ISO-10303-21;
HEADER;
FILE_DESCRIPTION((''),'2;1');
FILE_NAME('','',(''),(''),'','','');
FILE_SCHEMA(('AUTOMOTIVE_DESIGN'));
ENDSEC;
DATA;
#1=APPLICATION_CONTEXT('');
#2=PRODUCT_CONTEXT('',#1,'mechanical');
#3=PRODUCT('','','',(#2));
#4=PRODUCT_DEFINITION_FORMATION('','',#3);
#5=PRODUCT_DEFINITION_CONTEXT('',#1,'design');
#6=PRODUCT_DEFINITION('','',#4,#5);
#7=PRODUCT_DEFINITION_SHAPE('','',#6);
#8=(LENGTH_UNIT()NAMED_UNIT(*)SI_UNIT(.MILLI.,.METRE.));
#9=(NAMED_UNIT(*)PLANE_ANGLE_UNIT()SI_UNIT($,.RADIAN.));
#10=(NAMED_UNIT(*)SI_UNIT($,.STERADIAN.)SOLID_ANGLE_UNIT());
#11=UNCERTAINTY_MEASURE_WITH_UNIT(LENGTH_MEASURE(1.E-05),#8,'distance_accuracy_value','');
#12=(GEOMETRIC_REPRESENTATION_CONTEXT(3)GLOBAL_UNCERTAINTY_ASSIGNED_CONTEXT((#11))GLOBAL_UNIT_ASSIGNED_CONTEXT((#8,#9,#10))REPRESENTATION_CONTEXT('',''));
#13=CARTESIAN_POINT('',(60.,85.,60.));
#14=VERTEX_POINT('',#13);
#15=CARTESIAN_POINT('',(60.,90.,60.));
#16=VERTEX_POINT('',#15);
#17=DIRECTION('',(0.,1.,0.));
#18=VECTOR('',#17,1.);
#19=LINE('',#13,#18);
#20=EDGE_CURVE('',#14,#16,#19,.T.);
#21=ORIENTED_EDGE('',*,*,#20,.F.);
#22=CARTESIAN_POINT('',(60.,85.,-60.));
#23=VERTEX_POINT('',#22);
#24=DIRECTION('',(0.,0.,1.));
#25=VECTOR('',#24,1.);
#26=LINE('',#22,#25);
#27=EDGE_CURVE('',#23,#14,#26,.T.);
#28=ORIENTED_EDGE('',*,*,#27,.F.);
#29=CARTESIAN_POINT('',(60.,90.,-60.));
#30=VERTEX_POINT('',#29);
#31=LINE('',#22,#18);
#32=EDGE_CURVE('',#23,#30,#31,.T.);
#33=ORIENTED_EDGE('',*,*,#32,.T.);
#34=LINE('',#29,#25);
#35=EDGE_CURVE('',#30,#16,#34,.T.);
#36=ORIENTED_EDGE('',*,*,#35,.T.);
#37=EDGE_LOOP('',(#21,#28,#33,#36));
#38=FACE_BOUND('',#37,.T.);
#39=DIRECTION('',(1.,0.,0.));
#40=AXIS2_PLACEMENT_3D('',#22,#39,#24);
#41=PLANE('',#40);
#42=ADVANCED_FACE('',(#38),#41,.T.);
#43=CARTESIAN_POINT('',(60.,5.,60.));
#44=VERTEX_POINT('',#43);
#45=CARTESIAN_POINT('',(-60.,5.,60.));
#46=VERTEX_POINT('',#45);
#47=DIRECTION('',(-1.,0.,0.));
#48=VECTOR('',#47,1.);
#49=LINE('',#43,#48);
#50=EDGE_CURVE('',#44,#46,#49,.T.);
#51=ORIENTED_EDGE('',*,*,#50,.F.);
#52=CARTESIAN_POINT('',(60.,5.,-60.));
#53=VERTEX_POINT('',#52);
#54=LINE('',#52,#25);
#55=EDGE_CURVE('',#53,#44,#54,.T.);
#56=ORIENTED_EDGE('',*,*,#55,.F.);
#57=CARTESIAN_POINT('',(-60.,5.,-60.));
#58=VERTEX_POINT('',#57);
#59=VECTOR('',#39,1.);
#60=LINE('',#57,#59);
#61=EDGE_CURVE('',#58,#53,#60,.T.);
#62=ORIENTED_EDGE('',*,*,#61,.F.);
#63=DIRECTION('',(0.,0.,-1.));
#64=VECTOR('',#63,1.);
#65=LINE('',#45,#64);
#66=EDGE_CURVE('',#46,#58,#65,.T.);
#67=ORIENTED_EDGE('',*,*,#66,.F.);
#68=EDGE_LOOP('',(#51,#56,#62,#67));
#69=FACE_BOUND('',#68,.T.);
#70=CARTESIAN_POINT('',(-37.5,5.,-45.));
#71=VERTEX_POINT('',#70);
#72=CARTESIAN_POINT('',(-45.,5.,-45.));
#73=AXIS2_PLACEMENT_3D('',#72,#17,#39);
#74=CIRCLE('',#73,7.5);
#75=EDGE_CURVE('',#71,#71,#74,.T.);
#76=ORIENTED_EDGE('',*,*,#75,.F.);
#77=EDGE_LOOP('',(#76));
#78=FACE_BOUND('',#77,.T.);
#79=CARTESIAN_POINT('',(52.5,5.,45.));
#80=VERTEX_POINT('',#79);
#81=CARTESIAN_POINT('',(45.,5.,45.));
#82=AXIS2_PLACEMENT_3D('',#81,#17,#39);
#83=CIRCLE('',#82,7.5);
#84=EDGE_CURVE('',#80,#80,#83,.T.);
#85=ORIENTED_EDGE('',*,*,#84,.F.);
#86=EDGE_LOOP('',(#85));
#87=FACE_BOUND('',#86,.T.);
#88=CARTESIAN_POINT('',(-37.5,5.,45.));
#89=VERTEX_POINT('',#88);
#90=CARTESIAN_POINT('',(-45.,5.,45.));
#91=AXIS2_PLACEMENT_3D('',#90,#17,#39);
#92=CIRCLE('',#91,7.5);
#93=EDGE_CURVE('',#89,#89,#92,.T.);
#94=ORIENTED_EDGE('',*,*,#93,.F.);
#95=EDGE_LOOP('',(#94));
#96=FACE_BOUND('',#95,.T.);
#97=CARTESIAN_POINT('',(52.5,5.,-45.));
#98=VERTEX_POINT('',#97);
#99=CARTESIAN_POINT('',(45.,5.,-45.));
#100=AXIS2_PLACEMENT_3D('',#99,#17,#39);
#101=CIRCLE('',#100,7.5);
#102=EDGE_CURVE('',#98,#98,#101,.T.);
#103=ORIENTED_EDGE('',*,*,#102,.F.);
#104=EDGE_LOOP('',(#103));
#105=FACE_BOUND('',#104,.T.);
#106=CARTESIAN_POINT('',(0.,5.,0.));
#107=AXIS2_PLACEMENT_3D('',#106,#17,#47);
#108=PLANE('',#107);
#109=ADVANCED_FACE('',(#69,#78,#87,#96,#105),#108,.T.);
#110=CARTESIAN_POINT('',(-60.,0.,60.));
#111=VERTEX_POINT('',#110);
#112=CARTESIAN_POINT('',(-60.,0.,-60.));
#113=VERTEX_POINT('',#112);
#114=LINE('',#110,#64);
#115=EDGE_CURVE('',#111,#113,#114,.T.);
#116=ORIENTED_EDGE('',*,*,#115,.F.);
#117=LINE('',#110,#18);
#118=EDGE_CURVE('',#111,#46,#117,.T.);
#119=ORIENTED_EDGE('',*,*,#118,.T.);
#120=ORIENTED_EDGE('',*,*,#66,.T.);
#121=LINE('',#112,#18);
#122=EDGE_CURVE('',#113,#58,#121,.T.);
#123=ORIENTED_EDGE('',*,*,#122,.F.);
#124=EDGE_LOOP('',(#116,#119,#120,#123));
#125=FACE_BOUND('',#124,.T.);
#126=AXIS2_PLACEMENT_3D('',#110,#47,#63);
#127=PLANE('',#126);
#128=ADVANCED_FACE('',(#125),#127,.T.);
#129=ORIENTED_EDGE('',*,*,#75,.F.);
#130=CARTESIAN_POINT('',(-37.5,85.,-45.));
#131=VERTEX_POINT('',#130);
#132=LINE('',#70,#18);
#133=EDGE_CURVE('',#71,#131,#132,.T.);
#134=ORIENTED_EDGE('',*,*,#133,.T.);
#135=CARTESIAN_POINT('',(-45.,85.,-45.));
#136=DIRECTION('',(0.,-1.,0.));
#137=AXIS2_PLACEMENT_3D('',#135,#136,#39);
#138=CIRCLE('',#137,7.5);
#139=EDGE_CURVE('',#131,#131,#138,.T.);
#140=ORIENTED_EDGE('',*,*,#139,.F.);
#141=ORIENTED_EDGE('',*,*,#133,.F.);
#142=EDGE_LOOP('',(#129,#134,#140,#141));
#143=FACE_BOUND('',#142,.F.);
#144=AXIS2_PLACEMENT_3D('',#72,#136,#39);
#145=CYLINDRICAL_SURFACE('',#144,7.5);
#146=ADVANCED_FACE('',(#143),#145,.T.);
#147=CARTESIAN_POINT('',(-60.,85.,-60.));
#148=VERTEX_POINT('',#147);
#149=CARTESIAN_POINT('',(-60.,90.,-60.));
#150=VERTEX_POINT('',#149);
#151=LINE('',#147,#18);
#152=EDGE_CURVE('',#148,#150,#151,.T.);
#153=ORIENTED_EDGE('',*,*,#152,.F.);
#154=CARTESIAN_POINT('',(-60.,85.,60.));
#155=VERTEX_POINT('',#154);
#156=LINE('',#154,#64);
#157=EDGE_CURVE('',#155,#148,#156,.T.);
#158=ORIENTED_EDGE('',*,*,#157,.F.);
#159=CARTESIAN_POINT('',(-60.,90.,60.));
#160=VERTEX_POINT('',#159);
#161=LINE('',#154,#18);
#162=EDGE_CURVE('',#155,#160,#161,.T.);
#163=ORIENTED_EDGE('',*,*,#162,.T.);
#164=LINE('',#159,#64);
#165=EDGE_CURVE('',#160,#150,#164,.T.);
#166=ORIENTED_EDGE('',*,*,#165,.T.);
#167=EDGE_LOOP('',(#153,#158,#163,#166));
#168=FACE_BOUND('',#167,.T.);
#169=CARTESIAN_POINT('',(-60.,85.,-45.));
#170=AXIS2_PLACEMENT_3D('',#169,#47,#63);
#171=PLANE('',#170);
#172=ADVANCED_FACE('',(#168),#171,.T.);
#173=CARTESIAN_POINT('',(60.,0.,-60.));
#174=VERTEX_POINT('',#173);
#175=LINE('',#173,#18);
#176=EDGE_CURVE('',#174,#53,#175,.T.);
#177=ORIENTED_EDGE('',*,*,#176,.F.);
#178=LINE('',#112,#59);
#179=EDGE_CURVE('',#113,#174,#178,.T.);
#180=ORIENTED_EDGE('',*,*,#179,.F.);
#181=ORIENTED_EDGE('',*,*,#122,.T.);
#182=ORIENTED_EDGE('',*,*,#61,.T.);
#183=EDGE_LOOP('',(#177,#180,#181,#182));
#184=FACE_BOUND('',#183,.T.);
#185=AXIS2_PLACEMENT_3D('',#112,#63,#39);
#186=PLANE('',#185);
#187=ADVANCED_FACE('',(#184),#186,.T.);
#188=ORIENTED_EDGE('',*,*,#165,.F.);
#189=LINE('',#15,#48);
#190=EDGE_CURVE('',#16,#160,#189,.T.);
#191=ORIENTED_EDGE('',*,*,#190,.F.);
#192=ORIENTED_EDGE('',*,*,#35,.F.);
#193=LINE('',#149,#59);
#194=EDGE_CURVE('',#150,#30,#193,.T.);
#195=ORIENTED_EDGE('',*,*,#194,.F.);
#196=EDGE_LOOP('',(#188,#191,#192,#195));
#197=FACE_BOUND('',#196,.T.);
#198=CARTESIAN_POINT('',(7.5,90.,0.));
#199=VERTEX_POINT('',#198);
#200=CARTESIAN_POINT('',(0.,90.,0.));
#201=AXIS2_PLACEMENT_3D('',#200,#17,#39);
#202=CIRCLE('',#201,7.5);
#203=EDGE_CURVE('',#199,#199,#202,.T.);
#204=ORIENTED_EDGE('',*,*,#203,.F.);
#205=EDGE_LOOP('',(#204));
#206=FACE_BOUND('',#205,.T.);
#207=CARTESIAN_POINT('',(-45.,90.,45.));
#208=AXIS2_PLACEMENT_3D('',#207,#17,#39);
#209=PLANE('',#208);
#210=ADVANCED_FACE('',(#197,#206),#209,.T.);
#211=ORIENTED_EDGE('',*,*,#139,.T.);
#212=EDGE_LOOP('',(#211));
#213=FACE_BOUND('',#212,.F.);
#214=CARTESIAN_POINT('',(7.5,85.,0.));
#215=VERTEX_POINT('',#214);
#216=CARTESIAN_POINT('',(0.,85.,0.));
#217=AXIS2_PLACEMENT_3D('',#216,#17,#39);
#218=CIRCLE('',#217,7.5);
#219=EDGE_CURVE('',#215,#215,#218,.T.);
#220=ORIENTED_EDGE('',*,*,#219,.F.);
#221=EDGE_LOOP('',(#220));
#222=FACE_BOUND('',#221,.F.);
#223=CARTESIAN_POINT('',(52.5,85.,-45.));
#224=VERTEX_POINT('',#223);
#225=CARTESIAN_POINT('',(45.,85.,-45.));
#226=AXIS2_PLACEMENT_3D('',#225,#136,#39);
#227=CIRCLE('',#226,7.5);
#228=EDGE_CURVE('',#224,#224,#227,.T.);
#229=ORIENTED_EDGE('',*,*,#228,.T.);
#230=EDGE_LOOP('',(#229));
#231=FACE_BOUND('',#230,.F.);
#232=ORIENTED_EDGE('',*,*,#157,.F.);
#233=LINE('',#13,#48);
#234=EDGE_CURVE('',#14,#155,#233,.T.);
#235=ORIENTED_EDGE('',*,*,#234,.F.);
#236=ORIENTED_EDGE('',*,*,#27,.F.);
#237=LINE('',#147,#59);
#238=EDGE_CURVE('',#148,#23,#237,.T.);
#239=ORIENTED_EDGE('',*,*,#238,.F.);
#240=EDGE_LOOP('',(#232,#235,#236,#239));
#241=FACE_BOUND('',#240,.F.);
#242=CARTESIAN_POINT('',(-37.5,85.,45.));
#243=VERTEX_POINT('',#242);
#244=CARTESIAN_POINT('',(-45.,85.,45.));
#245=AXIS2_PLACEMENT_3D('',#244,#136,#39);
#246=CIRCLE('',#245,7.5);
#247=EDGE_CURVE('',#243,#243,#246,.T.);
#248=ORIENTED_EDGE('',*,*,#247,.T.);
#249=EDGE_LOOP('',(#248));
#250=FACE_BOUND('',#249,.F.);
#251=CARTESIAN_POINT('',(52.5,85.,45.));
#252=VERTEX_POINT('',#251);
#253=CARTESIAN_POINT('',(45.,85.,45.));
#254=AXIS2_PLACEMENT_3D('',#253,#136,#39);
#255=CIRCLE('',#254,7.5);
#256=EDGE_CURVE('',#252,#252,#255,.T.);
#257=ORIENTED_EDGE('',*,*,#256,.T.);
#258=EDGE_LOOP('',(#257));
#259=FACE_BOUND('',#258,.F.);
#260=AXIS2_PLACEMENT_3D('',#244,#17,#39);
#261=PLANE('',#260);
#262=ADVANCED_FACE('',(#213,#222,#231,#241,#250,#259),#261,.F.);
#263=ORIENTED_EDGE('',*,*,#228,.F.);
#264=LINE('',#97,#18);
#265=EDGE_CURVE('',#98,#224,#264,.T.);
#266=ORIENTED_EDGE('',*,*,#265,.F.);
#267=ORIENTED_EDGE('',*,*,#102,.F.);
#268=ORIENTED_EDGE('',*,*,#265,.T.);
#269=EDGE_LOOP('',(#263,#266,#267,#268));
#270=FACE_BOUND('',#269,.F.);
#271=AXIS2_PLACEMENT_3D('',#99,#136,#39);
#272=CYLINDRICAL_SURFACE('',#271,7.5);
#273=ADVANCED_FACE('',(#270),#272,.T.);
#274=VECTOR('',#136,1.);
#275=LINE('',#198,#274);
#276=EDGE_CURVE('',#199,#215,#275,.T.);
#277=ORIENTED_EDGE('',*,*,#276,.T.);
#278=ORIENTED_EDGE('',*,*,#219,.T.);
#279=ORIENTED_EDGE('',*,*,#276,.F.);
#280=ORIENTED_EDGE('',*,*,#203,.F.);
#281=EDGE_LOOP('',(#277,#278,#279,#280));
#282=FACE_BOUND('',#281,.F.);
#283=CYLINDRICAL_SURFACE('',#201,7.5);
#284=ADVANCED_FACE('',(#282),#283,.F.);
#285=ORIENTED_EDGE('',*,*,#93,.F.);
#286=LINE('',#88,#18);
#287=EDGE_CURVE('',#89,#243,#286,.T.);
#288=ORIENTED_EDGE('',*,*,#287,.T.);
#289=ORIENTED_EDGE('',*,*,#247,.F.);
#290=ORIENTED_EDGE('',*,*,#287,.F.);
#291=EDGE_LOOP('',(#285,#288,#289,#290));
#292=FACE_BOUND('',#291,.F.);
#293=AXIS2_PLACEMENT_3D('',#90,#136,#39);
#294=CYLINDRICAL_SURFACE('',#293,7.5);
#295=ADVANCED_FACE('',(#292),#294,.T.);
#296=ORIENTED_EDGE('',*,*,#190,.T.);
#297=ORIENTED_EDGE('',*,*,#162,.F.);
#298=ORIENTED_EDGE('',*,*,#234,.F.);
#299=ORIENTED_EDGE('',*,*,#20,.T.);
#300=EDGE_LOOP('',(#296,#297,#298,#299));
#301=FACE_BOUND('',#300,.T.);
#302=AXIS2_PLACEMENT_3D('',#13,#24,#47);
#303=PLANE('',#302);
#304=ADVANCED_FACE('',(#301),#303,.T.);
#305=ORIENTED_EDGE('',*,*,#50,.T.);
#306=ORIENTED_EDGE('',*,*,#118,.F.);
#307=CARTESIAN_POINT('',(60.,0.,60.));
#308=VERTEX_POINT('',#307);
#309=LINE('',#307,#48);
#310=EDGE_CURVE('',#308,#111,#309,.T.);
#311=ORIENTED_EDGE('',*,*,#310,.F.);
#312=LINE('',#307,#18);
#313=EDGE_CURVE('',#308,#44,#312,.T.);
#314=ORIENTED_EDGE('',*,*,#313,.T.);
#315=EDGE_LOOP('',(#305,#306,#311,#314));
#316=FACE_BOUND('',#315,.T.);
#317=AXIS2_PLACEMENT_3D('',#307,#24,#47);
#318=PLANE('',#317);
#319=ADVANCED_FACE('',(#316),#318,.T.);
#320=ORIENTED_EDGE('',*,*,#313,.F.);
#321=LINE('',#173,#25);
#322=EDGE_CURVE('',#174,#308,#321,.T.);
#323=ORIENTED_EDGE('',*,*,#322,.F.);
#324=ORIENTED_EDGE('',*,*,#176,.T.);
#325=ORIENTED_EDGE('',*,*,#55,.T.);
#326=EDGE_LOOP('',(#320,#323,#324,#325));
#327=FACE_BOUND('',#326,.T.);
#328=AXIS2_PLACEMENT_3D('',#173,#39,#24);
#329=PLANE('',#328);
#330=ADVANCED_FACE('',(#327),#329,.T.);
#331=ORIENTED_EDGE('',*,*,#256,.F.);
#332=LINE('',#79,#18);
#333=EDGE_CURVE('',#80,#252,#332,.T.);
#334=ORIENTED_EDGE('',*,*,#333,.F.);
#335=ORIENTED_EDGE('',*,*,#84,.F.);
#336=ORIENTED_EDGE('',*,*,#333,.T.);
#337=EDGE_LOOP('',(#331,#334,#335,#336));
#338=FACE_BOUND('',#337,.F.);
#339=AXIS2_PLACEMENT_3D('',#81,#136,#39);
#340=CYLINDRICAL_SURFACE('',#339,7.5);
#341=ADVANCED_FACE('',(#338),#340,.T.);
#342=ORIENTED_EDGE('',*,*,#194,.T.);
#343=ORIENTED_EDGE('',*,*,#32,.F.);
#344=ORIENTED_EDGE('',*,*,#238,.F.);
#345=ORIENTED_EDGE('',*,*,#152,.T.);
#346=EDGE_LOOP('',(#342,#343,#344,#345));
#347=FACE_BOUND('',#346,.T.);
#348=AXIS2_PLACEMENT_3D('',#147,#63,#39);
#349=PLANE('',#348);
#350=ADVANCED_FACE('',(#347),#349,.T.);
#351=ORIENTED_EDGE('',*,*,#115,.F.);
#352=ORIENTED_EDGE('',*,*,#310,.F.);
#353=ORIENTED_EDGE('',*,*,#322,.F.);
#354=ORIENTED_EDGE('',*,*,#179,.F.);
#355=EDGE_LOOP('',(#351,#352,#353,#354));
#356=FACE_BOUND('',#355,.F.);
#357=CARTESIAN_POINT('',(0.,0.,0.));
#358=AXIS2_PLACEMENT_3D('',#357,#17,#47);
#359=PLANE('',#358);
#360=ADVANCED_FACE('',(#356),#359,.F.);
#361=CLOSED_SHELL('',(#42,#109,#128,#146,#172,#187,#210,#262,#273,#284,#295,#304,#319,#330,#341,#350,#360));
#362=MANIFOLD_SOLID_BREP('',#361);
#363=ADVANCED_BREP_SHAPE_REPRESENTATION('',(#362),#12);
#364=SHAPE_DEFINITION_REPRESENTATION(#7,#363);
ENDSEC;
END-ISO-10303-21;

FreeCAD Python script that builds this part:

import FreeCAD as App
import Part
import Sketcher
from FreeCAD import Vector


def add_polygon(sketch, points):
    """Adds a closed chain of lines whose ends are joined by coincident constraints."""
    first, n = sketch.GeometryCount, len(points)
    for a, b in zip(points, points[1:] + points[:1]):
        sketch.addGeometry(Part.LineSegment(App.Vector(*a, 0), App.Vector(*b, 0)), False)
    for i in range(n):
        sketch.addConstraint(Sketcher.Constraint("Coincident", first + i, 2, first + (i + 1) % n, 1))

doc = App.newDocument("Part")
body = doc.addObject("PartDesign::Body", "Body")

sketch1 = body.newObject("Sketcher::SketchObject", "Sketch")
sketch1.AttachmentSupport = (doc.getObject("XZ_Plane"), [""])
sketch1.MapMode = "FlatFace"
add_polygon(sketch1, [(60, -60), (-60, -60), (-60, 60), (60, 60)])
sketch1.addConstraint([
    Sketcher.Constraint("Horizontal", 0),
    Sketcher.Constraint("Vertical", 1),
    Sketcher.Constraint("Horizontal", 2),
    Sketcher.Constraint("Vertical", 3),
    Sketcher.Constraint("Symmetric", 0, 2, 2, 2, -1, 1),
    Sketcher.Constraint("Equal", 2, 1),
    Sketcher.Constraint("DistanceX", 0, 2, 0, 1, 120.0),
])
pad1 = body.newObject("PartDesign::Pad", "Pad")
pad1.Profile = sketch1
pad1.Length = 5
pad1.Reversed = True

sketch2 = body.newObject("Sketcher::SketchObject", "Sketch001")
sketch2.AttachmentSupport = (doc.getObject("XZ_Plane"), [""])
sketch2.MapMode = "FlatFace"
sketch2.AttachmentOffset = App.Placement(Vector(0, 0, -5), App.Rotation())
sketch2.addGeometry([
    Part.Circle(Vector(-45, 45, 0), Vector(0, 0, 1), 8),
    Part.Circle(Vector(45, 45, 0), Vector(0, 0, 1), 8),
    Part.Circle(Vector(-45, -45, 0), Vector(0, 0, 1), 8),
    Part.Circle(Vector(45, -45, 0), Vector(0, 0, 1), 8),
], False)
sketch2.addConstraint([
    Sketcher.Constraint("Equal", 0, 1),
    Sketcher.Constraint("Equal", 1, 2),
    Sketcher.Constraint("Equal", 2, 3),
    Sketcher.Constraint("Symmetric", 1, 3, 2, 3, -1, 1),
    Sketcher.Constraint("Symmetric", 0, 3, 3, 3, -1, 1),
    Sketcher.Constraint("Symmetric", 0, 3, 1, 3, -2),
    Sketcher.Constraint("Diameter", 0, 15.0),
    Sketcher.Constraint("DistanceX", 0, 3, 1, 3, 90.0),
    Sketcher.Constraint("DistanceY", 2, 3, 0, 3, 90.0),
])
pad2 = body.newObject("PartDesign::Pad", "Pad001")
pad2.Profile = sketch2
pad2.Length = 80
pad2.Reversed = True

sketch3 = body.newObject("Sketcher::SketchObject", "Sketch002")
sketch3.AttachmentSupport = (doc.getObject("XZ_Plane"), [""])
sketch3.MapMode = "FlatFace"
sketch3.AttachmentOffset = App.Placement(Vector(0, 0, -85), App.Rotation())
add_polygon(sketch3, [(-60, -60), (-60, 60), (60, 60), (60, -60)])
sketch3.addConstraint([
    Sketcher.Constraint("Vertical", 0),
    Sketcher.Constraint("Horizontal", 1),
    Sketcher.Constraint("Vertical", 2),
    Sketcher.Constraint("Horizontal", 3),
    Sketcher.Constraint("Symmetric", 0, 2, 2, 2, -1, 1),
    Sketcher.Constraint("Equal", 3, 0),
    Sketcher.Constraint("DistanceX", 1, 1, 1, 2, 120.0),
])
pad3 = body.newObject("PartDesign::Pad", "Pad002")
pad3.Profile = sketch3
pad3.Length = 5
pad3.Reversed = True

sketch4 = body.newObject("Sketcher::SketchObject", "Sketch003")
sketch4.AttachmentSupport = (doc.getObject("XZ_Plane"), [""])
sketch4.MapMode = "FlatFace"
sketch4.AttachmentOffset = App.Placement(Vector(0, 0, -90), App.Rotation())
sketch4.addGeometry(Part.Circle(Vector(0, 0, 0), Vector(0, 0, 1), 8), False)
sketch4.addConstraint([
    Sketcher.Constraint("Coincident", 0, 3, -1, 1),
    Sketcher.Constraint("Diameter", 0, 15.0),
])
pocket1 = body.newObject("PartDesign::Pocket", "Pocket")
pocket1.Profile = sketch4
pocket1.Length = 10
pocket1.Reversed = True

doc.recompute()
